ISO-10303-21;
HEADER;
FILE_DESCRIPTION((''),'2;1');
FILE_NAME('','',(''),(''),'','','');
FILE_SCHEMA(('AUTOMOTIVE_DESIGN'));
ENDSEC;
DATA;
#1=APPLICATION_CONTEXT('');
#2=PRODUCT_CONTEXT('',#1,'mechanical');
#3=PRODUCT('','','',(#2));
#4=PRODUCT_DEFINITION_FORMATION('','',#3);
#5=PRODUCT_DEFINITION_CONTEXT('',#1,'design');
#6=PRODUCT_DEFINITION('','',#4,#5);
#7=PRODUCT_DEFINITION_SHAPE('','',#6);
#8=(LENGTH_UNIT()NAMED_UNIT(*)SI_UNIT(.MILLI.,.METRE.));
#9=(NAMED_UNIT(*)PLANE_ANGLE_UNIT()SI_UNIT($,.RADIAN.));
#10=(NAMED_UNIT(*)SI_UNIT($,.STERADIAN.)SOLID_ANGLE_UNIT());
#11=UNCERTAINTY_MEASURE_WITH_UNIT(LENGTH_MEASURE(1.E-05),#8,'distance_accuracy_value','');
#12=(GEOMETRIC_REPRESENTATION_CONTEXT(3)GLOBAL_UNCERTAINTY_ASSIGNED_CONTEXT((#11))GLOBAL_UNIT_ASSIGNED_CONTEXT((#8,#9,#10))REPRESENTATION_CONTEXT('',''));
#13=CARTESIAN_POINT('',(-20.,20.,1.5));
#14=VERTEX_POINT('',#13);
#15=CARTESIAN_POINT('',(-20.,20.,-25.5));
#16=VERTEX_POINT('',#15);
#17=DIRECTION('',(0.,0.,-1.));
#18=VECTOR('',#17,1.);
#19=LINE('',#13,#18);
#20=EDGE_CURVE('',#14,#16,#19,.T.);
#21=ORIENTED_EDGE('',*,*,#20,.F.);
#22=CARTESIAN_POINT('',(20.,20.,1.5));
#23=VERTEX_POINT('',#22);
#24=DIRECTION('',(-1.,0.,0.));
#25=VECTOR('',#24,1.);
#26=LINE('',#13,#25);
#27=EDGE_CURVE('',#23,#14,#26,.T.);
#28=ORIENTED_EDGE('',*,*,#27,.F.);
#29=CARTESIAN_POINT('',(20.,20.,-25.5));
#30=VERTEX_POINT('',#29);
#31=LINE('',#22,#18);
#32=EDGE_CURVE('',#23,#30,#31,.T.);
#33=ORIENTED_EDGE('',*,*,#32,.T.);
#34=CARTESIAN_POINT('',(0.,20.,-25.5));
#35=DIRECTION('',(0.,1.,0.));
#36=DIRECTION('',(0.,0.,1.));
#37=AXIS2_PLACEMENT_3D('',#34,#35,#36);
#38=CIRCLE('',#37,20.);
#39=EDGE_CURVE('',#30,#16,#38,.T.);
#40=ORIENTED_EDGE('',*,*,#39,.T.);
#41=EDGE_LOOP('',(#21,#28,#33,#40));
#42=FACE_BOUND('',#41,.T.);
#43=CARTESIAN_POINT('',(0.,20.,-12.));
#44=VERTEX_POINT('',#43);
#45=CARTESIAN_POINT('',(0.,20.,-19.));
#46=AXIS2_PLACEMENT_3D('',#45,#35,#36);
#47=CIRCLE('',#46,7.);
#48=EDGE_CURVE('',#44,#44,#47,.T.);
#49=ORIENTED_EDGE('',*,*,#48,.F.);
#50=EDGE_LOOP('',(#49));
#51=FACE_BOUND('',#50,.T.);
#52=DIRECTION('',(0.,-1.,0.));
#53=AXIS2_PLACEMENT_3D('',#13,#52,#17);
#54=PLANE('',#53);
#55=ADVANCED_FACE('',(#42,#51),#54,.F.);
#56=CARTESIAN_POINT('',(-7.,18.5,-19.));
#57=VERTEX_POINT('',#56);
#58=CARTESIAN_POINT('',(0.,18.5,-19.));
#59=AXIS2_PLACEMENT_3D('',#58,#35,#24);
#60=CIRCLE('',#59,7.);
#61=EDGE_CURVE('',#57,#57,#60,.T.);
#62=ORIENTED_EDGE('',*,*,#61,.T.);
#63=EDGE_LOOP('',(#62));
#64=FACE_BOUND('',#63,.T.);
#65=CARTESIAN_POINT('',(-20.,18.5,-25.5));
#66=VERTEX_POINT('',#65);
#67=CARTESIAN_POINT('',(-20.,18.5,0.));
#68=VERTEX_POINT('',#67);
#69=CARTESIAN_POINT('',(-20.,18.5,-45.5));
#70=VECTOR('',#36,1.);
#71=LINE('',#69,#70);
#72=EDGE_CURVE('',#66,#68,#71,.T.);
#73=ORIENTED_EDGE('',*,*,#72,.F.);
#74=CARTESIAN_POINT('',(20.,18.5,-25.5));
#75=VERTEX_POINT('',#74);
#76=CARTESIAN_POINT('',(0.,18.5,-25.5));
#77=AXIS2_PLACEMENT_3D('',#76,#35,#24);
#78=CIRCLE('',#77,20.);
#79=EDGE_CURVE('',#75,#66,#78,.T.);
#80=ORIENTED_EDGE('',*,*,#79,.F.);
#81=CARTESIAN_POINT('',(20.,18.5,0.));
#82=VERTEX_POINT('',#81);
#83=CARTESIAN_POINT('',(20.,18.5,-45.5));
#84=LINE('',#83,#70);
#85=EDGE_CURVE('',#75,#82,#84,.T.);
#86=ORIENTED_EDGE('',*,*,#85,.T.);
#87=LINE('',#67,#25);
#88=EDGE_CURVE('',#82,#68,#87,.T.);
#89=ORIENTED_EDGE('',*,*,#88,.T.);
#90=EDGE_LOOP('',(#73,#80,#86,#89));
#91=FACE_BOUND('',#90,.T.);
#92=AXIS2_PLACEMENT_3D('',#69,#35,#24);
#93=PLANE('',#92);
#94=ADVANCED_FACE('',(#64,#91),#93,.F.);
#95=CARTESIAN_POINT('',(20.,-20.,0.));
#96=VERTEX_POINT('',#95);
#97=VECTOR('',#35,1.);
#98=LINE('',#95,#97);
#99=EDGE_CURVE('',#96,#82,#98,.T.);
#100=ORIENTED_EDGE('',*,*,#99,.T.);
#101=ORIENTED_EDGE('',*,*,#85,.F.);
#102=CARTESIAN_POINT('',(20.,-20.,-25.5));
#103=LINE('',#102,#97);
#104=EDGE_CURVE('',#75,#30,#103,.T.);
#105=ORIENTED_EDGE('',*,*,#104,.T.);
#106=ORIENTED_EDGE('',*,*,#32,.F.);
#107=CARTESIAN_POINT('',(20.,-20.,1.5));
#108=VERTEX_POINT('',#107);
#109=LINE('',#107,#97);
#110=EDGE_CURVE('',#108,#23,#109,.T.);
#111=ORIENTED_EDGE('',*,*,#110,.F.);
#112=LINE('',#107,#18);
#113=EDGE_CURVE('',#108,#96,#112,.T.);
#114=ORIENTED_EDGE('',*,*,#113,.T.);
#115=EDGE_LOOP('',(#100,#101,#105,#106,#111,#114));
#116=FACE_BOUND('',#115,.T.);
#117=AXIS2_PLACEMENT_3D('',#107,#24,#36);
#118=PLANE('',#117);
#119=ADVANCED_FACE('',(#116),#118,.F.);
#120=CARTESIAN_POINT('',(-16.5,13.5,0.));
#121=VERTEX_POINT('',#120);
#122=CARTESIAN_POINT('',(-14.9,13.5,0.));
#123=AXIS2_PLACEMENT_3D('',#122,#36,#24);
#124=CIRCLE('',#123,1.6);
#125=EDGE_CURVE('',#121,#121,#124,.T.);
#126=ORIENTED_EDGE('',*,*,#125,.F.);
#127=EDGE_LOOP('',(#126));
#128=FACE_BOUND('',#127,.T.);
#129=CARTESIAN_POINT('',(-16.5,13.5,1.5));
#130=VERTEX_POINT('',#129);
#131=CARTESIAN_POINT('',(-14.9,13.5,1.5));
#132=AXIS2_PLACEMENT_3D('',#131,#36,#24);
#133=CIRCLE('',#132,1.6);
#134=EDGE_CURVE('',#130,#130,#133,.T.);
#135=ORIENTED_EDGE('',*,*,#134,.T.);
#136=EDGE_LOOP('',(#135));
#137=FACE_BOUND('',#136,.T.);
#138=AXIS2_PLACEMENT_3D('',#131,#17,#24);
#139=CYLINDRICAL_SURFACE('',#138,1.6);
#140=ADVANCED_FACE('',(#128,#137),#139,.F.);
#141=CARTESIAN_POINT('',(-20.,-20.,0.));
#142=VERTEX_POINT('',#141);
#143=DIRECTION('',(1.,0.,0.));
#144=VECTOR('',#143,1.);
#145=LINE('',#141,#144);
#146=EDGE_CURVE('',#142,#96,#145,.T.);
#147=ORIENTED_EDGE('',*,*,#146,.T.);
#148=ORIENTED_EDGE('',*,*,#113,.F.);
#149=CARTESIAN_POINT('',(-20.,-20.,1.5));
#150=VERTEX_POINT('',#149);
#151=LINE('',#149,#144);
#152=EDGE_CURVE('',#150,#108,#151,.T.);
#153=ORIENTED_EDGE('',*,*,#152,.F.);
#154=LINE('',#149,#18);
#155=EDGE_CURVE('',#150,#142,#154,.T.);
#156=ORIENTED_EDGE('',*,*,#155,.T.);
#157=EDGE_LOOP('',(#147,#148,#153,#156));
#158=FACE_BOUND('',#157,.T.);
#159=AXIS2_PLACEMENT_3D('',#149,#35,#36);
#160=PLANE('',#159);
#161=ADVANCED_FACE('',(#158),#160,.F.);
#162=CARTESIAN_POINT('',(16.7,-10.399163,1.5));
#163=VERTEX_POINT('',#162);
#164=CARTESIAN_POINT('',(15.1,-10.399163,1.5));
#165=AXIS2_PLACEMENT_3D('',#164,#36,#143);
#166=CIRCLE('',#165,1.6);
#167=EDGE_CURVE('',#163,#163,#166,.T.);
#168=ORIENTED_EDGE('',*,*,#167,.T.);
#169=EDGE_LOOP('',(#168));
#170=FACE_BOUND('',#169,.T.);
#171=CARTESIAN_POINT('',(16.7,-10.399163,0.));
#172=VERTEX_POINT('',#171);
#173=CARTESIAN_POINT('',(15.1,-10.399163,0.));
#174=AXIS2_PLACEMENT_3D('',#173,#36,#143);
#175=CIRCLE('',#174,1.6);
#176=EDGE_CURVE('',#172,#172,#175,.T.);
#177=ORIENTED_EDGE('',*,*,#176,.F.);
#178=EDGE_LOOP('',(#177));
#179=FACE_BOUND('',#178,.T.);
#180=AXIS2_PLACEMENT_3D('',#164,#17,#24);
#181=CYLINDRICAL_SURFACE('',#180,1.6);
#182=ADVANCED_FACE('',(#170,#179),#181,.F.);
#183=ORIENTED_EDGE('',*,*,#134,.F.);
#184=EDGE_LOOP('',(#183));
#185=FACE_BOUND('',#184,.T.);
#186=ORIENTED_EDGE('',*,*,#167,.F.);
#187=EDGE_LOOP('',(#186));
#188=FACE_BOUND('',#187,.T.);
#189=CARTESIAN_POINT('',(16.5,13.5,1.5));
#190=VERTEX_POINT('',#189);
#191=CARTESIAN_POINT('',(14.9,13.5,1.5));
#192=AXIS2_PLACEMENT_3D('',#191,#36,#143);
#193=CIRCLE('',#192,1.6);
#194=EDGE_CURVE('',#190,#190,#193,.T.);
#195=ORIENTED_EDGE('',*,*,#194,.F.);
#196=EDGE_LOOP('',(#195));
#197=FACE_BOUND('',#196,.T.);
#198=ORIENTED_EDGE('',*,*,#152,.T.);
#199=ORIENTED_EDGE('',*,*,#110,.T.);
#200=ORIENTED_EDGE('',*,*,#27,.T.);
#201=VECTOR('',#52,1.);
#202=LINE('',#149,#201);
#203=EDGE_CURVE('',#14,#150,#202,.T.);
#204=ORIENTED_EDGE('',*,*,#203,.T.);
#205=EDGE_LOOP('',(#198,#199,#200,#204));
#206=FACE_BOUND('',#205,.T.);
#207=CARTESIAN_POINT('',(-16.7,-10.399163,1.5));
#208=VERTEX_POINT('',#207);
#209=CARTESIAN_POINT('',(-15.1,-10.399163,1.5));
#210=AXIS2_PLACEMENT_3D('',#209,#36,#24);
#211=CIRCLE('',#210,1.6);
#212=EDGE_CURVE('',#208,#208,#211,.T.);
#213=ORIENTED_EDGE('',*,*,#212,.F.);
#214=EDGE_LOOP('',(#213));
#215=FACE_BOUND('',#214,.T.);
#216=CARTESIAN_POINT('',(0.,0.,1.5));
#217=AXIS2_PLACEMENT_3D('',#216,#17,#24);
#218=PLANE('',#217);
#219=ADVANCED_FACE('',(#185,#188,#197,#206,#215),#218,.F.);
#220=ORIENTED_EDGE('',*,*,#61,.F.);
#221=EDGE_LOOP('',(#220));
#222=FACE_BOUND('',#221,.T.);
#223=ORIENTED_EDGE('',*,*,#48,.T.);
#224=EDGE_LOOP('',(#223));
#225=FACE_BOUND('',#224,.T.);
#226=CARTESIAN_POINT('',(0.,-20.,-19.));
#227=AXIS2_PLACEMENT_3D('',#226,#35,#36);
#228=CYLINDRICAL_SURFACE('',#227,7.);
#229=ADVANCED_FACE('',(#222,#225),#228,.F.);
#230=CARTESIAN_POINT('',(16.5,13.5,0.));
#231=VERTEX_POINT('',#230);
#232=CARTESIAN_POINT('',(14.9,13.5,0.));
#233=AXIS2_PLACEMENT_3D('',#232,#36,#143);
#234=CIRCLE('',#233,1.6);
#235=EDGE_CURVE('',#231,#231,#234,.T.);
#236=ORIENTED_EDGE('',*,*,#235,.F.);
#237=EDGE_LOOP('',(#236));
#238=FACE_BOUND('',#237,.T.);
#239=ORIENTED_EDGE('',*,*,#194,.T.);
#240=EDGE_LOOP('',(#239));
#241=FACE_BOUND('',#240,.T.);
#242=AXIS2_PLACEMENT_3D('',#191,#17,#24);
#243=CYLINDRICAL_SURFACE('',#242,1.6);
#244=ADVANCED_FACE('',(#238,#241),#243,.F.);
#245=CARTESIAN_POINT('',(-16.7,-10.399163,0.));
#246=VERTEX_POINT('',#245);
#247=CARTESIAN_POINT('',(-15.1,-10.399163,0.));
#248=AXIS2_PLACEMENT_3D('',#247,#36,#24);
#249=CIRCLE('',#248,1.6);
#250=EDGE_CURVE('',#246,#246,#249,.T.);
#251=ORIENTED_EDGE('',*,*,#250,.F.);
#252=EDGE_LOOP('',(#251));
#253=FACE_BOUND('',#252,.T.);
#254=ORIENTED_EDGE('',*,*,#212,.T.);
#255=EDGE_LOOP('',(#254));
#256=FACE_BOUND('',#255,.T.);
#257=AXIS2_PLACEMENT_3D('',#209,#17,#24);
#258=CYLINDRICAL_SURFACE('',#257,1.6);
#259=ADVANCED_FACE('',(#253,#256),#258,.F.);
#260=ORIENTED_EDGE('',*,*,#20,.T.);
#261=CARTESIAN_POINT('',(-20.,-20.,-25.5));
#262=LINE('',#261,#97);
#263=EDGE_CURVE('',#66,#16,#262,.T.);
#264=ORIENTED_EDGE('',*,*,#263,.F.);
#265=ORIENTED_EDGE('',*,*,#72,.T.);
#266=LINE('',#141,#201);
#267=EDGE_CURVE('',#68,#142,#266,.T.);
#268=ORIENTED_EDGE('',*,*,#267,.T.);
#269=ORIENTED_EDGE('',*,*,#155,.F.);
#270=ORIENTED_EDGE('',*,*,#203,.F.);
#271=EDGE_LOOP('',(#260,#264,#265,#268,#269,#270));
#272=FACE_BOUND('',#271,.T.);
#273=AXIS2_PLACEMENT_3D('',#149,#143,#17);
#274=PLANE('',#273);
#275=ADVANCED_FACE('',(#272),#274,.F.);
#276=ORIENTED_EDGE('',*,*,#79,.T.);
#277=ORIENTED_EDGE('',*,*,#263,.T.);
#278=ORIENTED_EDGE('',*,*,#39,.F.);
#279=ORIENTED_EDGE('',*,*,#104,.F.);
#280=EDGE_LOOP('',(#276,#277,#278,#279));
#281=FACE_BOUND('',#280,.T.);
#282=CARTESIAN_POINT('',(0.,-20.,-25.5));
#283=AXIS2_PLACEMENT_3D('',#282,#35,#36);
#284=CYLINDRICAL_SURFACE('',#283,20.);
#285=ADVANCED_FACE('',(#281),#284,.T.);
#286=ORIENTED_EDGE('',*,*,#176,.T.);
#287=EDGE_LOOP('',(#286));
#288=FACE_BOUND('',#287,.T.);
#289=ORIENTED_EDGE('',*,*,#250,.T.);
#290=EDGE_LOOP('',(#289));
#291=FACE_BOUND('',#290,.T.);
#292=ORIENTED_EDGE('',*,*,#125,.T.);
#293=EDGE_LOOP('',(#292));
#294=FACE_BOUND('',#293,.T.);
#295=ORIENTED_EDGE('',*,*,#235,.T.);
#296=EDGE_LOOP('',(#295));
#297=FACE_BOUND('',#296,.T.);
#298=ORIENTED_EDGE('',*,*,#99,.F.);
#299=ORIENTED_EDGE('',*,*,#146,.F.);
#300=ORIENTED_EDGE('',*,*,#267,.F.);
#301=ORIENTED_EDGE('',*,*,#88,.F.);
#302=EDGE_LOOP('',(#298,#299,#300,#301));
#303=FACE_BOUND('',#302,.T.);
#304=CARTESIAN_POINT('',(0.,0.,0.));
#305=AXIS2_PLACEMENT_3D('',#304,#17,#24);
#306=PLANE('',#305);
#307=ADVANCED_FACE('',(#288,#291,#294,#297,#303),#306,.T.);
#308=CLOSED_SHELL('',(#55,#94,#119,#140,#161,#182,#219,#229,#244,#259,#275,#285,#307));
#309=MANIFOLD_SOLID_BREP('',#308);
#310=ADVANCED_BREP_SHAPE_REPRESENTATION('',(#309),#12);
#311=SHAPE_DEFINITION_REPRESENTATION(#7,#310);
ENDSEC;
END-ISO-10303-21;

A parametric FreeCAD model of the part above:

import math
import FreeCAD as App
import Part
import Sketcher

V = App.Vector

doc = App.newDocument("Part")
body = doc.addObject("PartDesign::Body", "Body")

sketch1 = doc.addObject("Sketcher::SketchObject", "Sketch")
body.addObject(sketch1)
sketch1.AttachmentSupport = (doc.XY_Plane, [""])
sketch1.MapMode = "FlatFace"
sketch1.addGeometry([
    Part.LineSegment(V(-20, 20, 0), V(-20, -20, 0)),
    Part.LineSegment(V(-20, -20, 0), V(20, -20, 0)),
    Part.LineSegment(V(20, -20, 0), V(20, 20, 0)),
    Part.LineSegment(V(20, 20, 0), V(-20, 20, 0)),
    Part.Circle(V(-15.1, -10.4, 0), V(0, 0, 1), 1.6),
    Part.Circle(V(15.1, -10.4, 0), V(0, 0, 1), 1.6),
    Part.Circle(V(-14.9, 13.5, 0), V(0, 0, 1), 1.6),
    Part.Circle(V(14.9, 13.5, 0), V(0, 0, 1), 1.6),
], False)
sketch1.addConstraint([
    Sketcher.Constraint("Coincident", 0, 2, 1, 1),
    Sketcher.Constraint("Coincident", 1, 2, 2, 1),
    Sketcher.Constraint("Coincident", 2, 2, 3, 1),
    Sketcher.Constraint("Coincident", 3, 2, 0, 1),
    Sketcher.Constraint("Vertical", 0),
    Sketcher.Constraint("Horizontal", 1),
    Sketcher.Constraint("Vertical", 2),
    Sketcher.Constraint("Horizontal", 3),
    Sketcher.Constraint("Equal", 4, 5),
    Sketcher.Constraint("Equal", 5, 6),
    Sketcher.Constraint("Equal", 6, 7),
    Sketcher.Constraint("Symmetric", 0, 2, 2, 2, -1, 1),
    Sketcher.Constraint("Symmetric", 4, 3, 5, 3, -2),
    Sketcher.Constraint("Symmetric", 6, 3, 7, 3, -2),
    Sketcher.Constraint("Equal", 3, 0),
    Sketcher.Constraint("Diameter", 4, 3.2),
    Sketcher.Constraint("DistanceX", 1, 1, 1, 2, 40.0),
    Sketcher.Constraint("DistanceX", 6, 3, 5, 3, 30.0),
    Sketcher.Constraint("DistanceX", 4, 3, -1, 1, 15.1),
    Sketcher.Constraint("DistanceY", -1, 1, 6, 3, 13.5),
    Sketcher.Constraint("DistanceY", 4, 3, -1, 1, 10.399163),
])
pad1 = doc.addObject("PartDesign::Pad", "Pad")
body.addObject(pad1)
pad1.Profile = sketch1
pad1.Length = 1.5

sketch2 = doc.addObject("Sketcher::SketchObject", "Sketch001")
body.addObject(sketch2)
sketch2.AttachmentSupport = (doc.XY_Plane, [""])
sketch2.MapMode = "FlatFace"
sketch2.addGeometry([
    Part.LineSegment(V(20, 20, 0), V(20, 18.5, 0)),
    Part.LineSegment(V(20, 18.5, 0), V(-20, 18.5, 0)),
    Part.LineSegment(V(-20, 18.5, 0), V(-20, 20, 0)),
    Part.LineSegment(V(-20, 20, 0), V(20, 20, 0)),
], False)
sketch2.addConstraint([
    Sketcher.Constraint("Coincident", 0, 2, 1, 1),
    Sketcher.Constraint("Coincident", 1, 2, 2, 1),
    Sketcher.Constraint("Coincident", 2, 2, 3, 1),
    Sketcher.Constraint("Coincident", 3, 2, 0, 1),
    Sketcher.Constraint("Vertical", 0),
    Sketcher.Constraint("Horizontal", 1),
    Sketcher.Constraint("Vertical", 2),
    Sketcher.Constraint("Horizontal", 3),
    Sketcher.Constraint("DistanceX", 1, 2, 1, 1, 40.0),
    Sketcher.Constraint("DistanceY", 0, 2, 0, 1, 1.5),
    Sketcher.Constraint("DistanceX", -1, 1, 0, 2, 20.0),
    Sketcher.Constraint("DistanceY", -1, 1, 2, 2, 20.0),
])
pad2 = doc.addObject("PartDesign::Pad", "Pad001")
body.addObject(pad2)
pad2.Profile = sketch2
pad2.Length = 45.5
pad2.Reversed = True

sketch3 = doc.addObject("Sketcher::SketchObject", "Sketch002")
body.addObject(sketch3)
sketch3.AttachmentSupport = (doc.XZ_Plane, [""])
sketch3.MapMode = "FlatFace"
sketch3.AttachmentOffset = App.Placement(V(0, 0, -20), App.Rotation())
sketch3.addGeometry([
    Part.ArcOfCircle(Part.Circle(V(0, -26, 0), V(0, 0, 1), 20), math.radians(-90), math.radians(0)),
    Part.LineSegment(V(20, -26, 0), V(20, -46, 0)),
    Part.LineSegment(V(20, -46, 0), V(0, -46, 0)),
    Part.LineSegment(V(-20, -46, 0), V(-20, -26, 0)),
    Part.ArcOfCircle(Part.Circle(V(0, -26, 0), V(0, 0, 1), 20), math.radians(180), math.radians(270)),
    Part.LineSegment(V(0, -46, 0), V(-20, -46, 0)),
], False)
sketch3.addConstraint([
    Sketcher.Constraint("Tangent", 0, 2, 1, 1),
    Sketcher.Constraint("Coincident", 1, 2, 2, 1),
    Sketcher.Constraint("Tangent", 2, 2, 0, 1),
    Sketcher.Constraint("Tangent", 3, 2, 4, 1),
    Sketcher.Constraint("Tangent", 4, 2, 5, 1),
    Sketcher.Constraint("Coincident", 5, 2, 3, 1),
    Sketcher.Constraint("Vertical", 1),
    Sketcher.Constraint("Horizontal", 2),
    Sketcher.Constraint("Vertical", 3),
    Sketcher.Constraint("Horizontal", 5),
    Sketcher.Constraint("Coincident", 4, 3, 0, 3),
    Sketcher.Constraint("Equal", 0, 4),
    Sketcher.Constraint("PointOnObject", 0, 3, -2),
    Sketcher.Constraint("Radius", 0, 20.0),
    Sketcher.Constraint("DistanceY", 0, 3, -1, 1, 25.5),
])
pocket1 = doc.addObject("PartDesign::Pocket", "Pocket")
body.addObject(pocket1)
pocket1.Profile = sketch3
pocket1.Type = "ThroughAll"
pocket1.Reversed = True

sketch4 = doc.addObject("Sketcher::SketchObject", "Sketch003")
body.addObject(sketch4)
sketch4.AttachmentSupport = (doc.XZ_Plane, [""])
sketch4.MapMode = "FlatFace"
sketch4.AttachmentOffset = App.Placement(V(0, 0, -20), App.Rotation())
sketch4.addGeometry(Part.Circle(V(0, -19, 0), V(0, 0, 1), 7), False)
sketch4.addConstraint([
    Sketcher.Constraint("PointOnObject", 0, 3, -2),
    Sketcher.Constraint("Diameter", 0, 14.0),
    Sketcher.Constraint("DistanceY", 0, 3, -1, 1, 19.0),
])
pocket2 = doc.addObject("PartDesign::Pocket", "Pocket001")
body.addObject(pocket2)
pocket2.Profile = sketch4
pocket2.Type = "ThroughAll"
pocket2.Reversed = True

doc.recompute()
